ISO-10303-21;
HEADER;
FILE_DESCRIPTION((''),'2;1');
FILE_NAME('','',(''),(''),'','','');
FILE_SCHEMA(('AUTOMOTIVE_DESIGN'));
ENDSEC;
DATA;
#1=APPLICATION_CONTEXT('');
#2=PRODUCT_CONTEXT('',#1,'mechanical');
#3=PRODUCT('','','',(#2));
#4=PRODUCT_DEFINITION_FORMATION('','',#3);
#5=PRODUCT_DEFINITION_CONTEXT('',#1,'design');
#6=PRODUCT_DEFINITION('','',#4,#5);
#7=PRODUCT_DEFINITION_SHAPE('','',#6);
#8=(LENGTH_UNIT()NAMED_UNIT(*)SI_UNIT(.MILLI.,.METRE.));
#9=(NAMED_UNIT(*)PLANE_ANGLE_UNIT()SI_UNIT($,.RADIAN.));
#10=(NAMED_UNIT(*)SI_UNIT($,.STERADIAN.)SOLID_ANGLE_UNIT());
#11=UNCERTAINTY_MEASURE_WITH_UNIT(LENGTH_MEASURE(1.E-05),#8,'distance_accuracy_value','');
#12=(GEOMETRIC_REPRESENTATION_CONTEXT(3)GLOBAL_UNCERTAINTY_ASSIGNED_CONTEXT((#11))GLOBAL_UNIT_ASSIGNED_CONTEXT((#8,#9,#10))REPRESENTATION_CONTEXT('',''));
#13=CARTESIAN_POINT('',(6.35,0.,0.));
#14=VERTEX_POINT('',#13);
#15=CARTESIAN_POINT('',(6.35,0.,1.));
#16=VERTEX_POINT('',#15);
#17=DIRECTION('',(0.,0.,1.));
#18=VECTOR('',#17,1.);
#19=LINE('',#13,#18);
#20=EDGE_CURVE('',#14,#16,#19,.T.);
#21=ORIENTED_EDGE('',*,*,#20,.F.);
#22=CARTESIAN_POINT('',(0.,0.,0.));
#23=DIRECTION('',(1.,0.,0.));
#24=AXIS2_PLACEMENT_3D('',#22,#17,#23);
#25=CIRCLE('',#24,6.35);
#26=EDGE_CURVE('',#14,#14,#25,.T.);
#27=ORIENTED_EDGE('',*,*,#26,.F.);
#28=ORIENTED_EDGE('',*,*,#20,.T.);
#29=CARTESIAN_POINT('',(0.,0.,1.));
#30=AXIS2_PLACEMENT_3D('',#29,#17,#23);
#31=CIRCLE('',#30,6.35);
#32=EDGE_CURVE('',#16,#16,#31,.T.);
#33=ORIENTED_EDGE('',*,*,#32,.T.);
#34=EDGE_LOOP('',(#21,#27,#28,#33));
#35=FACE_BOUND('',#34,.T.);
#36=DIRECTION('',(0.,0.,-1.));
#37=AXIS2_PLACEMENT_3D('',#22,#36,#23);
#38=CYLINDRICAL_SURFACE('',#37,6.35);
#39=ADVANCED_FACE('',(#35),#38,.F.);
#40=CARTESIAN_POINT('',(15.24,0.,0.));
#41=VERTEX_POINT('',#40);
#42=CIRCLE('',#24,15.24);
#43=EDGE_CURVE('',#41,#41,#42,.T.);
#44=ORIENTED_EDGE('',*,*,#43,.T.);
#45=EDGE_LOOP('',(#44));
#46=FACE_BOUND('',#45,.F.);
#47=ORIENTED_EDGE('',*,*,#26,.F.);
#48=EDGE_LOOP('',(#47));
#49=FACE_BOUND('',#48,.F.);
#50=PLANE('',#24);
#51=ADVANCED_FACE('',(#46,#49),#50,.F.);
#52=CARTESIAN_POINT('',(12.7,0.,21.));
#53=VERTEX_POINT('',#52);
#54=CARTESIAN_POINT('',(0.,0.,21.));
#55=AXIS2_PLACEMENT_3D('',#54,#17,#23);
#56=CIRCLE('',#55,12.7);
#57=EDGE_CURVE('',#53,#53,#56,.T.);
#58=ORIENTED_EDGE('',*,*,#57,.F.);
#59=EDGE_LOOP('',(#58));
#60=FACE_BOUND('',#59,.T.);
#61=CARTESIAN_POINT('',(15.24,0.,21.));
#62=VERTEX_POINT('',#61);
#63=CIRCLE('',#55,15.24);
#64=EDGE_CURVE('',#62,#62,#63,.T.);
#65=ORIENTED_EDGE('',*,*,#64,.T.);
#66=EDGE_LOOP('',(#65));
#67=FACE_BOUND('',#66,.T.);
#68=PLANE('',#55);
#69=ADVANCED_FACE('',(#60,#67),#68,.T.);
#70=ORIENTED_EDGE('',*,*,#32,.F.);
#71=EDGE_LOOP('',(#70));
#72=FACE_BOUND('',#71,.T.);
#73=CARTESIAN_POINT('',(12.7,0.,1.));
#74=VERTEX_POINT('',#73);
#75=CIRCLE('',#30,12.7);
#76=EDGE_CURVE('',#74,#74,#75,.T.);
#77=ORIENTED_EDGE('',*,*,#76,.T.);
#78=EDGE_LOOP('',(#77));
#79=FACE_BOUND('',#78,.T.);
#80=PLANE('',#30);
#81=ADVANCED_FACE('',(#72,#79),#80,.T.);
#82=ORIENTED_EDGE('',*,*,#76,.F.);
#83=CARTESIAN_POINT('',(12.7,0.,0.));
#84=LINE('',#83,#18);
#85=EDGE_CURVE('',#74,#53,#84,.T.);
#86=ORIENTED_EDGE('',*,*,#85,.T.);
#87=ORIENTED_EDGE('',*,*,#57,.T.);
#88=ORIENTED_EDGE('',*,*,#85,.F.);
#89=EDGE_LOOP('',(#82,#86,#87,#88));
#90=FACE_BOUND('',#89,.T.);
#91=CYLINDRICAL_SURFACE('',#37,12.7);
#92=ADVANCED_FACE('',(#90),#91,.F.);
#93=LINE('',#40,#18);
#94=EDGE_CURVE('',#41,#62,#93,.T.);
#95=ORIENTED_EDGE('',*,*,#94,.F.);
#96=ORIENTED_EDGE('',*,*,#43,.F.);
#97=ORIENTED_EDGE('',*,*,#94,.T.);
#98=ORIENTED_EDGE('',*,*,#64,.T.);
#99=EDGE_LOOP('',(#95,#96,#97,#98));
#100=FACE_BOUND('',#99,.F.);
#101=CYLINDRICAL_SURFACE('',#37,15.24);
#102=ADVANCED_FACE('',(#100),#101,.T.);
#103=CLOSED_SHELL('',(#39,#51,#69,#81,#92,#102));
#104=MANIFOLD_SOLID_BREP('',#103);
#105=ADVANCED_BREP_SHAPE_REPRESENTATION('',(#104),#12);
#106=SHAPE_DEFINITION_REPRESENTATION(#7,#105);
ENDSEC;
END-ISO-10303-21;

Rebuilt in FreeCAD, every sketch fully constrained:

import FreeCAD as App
import Part
import Sketcher
Q = App.Units.Quantity

doc = App.newDocument("Part")
body = doc.addObject("PartDesign::Body", "Body")

sketch1 = body.newObject("Sketcher::SketchObject", "Sketch")
sketch1.AttachmentSupport = (doc.getObject("XY_Plane"), [""])
sketch1.MapMode = "FlatFace"
sketch1.addGeometry([
    Part.Circle(App.Vector(0, 0, 0), App.Vector(0, 0, 1), 15),
    Part.Circle(App.Vector(0, 0, 0), App.Vector(0, 0, 1), 13),
], False)
sketch1.addConstraint([
    Sketcher.Constraint("Coincident", 0, 3, -1, 1),
    Sketcher.Constraint("Coincident", 1, 3, -1, 1),
    Sketcher.Constraint("Diameter", 1, Q("1 in")),
    Sketcher.Constraint("Diameter", 0, Q("1.2 in")),
])
pad1 = body.newObject("PartDesign::Pad", "Pad")
pad1.Profile = sketch1
pad1.Length = 21

sketch2 = body.newObject("Sketcher::SketchObject", "Sketch001")
sketch2.AttachmentSupport = (doc.getObject("XY_Plane"), [""])
sketch2.MapMode = "FlatFace"
sketch2.addGeometry([
    Part.Circle(App.Vector(0, 0, 0), App.Vector(0, 0, 1), 13),
    Part.Circle(App.Vector(0, 0, 0), App.Vector(0, 0, 1), 6),
], False)
sketch2.addConstraint([
    Sketcher.Constraint("Coincident", 0, 3, -1, 1),
    Sketcher.Constraint("Coincident", 1, 3, -1, 1),
    Sketcher.Constraint("Diameter", 0, Q("1 in")),
    Sketcher.Constraint("Diameter", 1, Q("0.5 in")),
])
pad2 = body.newObject("PartDesign::Pad", "Pad001")
pad2.Profile = sketch2
pad2.Length = 1

doc.recompute()
